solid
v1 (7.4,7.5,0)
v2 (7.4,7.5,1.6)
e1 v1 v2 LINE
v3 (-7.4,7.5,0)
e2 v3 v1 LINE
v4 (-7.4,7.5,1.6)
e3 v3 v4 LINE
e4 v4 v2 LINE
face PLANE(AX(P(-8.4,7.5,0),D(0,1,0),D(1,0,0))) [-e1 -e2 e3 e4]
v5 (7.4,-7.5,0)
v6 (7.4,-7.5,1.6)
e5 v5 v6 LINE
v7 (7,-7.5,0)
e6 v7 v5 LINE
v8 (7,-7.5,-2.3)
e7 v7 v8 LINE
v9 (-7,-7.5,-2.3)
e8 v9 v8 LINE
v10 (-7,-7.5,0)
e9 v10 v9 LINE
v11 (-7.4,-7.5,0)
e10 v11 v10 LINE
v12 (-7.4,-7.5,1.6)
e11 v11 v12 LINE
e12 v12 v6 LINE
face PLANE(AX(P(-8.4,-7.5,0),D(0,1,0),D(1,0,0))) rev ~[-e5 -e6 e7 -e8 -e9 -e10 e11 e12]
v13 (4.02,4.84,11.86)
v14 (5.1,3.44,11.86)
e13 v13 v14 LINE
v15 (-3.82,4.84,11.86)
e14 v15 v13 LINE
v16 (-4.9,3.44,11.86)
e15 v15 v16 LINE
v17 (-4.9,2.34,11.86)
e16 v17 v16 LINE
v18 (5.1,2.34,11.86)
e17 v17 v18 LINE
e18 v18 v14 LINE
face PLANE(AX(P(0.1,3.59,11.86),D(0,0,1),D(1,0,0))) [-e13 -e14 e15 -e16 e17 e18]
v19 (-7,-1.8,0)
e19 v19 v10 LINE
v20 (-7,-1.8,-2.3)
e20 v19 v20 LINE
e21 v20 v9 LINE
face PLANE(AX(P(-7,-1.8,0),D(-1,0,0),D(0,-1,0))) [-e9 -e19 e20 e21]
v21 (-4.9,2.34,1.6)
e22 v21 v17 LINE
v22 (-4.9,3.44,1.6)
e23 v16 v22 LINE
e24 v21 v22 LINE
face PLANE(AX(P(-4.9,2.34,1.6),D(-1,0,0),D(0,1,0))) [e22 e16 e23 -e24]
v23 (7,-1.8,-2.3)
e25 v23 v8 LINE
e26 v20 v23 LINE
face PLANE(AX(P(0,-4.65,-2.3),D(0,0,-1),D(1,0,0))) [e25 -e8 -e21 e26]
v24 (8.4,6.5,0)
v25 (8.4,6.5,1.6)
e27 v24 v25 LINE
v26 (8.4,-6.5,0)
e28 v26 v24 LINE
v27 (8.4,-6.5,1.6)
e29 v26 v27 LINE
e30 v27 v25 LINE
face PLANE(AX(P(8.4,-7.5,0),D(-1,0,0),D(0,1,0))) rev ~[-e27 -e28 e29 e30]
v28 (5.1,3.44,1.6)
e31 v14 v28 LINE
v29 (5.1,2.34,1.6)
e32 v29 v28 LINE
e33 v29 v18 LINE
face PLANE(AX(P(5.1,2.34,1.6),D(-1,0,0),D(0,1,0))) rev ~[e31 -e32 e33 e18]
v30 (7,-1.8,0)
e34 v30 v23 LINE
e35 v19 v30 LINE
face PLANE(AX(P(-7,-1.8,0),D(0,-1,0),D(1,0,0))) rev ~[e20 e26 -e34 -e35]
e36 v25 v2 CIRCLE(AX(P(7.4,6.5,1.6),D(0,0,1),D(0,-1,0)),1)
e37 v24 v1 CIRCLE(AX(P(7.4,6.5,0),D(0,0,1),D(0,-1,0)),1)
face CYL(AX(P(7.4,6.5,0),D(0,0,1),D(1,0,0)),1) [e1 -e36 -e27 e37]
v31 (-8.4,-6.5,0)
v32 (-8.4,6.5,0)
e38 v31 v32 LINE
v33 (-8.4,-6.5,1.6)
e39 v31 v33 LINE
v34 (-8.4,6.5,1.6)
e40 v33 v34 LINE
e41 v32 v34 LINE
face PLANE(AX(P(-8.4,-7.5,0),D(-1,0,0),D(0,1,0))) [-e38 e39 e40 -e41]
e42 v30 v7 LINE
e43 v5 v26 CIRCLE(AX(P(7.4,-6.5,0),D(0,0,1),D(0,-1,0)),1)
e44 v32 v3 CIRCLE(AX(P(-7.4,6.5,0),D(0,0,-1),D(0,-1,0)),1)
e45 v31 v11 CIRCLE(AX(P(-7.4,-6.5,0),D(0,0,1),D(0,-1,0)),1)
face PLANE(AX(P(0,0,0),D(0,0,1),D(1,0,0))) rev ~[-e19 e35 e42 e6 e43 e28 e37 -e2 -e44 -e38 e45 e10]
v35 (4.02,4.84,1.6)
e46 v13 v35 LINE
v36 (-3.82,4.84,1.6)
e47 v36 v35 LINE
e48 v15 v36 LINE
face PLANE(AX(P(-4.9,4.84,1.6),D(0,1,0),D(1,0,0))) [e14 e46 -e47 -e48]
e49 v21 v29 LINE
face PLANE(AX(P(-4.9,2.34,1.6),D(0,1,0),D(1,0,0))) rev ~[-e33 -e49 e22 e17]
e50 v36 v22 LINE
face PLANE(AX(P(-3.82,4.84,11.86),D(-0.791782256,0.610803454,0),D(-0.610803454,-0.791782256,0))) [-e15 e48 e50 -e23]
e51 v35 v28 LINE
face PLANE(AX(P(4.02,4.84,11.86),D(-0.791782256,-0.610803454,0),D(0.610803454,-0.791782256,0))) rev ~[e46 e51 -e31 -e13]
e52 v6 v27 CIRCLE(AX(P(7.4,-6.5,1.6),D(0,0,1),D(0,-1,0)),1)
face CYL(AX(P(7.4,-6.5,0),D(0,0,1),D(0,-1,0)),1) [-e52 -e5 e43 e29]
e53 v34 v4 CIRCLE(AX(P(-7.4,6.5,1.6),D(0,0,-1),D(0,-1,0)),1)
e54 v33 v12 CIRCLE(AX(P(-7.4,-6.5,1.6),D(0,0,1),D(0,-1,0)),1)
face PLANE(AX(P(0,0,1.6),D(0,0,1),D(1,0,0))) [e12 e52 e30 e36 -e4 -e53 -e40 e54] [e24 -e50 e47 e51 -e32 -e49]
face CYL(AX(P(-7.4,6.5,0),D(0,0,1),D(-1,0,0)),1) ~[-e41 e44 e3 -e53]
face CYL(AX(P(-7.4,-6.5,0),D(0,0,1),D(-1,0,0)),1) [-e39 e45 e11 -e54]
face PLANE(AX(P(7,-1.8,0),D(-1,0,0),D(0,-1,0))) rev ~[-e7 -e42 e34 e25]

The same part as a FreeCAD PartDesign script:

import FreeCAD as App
import Part
import Sketcher

V = App.Vector
Q = App.Units.Quantity


def edges_at(feature, points):
    """Names of the edges that pass closest to the given points."""
    edges = feature.Shape.Edges
    near = lambda p: min(range(len(edges)), key=lambda i: edges[i].distToShape(Part.Vertex(*p))[0])
    return sorted({f"Edge{near(p) + 1}" for p in points})


def add_polygon(sketch, points):
    """Adds a closed chain of lines whose ends are joined by coincident constraints."""
    first, n = sketch.GeometryCount, len(points)
    for a, b in zip(points, points[1:] + points[:1]):
        sketch.addGeometry(Part.LineSegment(App.Vector(*a, 0), App.Vector(*b, 0)), False)
    for i in range(n):
        sketch.addConstraint(Sketcher.Constraint("Coincident", first + i, 2, first + (i + 1) % n, 1))

doc = App.newDocument("Part")
body = doc.addObject("PartDesign::Body", "Body")

# Sketch on XY plane
sketch1 = body.newObject("Sketcher::SketchObject", "Sketch")
sketch1.AttachmentSupport = (doc.getObject("XY_Plane"), [""])
sketch1.MapMode = "FlatFace"
add_polygon(sketch1, [(-8, 8), (-8, -8), (8, -8), (8, 8)])  # lines 0-3
sketch1.addConstraint(Sketcher.Constraint("Vertical", 0))
sketch1.addConstraint(Sketcher.Constraint("Horizontal", 1))
sketch1.addConstraint(Sketcher.Constraint("Vertical", 2))
sketch1.addConstraint(Sketcher.Constraint("Horizontal", 3))
sketch1.addConstraint(Sketcher.Constraint("Symmetric", 0, 2, 2, 2, -1, 1))
sketch1.addConstraint(Sketcher.Constraint("DistanceY", 0, 2, 0, 1, Q("15 mm")))
sketch1.addConstraint(Sketcher.Constraint("DistanceX", 1, 1, 1, 2, Q("16.8 mm")))
pad1 = body.newObject("PartDesign::Pad", "Pad")
pad1.Profile = sketch1
pad1.Length = 1.6
doc.recompute()

fillet = body.newObject("PartDesign::Fillet", "Fillet")
fillet.Base = (pad1, edges_at(pad1, [
    (8.4, 7.5, 0.8),
    (8.4, -7.5, 0.8),
    (-8.4, -7.5, 0.8),
    (-8.4, 7.5, 0.8),
]))
fillet.Radius = 1

# Sketch on XY plane
sketch2 = body.newObject("Sketcher::SketchObject", "Sketch001")
sketch2.AttachmentSupport = (doc.getObject("XY_Plane"), [""])
sketch2.MapMode = "FlatFace"
sketch2.AttachmentOffset = App.Placement(V(0, 0, 1.6), App.Rotation())
add_polygon(sketch2, [(-4.9, 4.8), (-4.9, 2.3), (5.1, 2.3), (5.1, 4.8)])  # lines 0-3
sketch2.addConstraint(Sketcher.Constraint("Vertical", 0))
sketch2.addConstraint(Sketcher.Constraint("Horizontal", 1))
sketch2.addConstraint(Sketcher.Constraint("Vertical", 2))
sketch2.addConstraint(Sketcher.Constraint("Horizontal", 3))
sketch2.addConstraint(Sketcher.Constraint("DistanceX", 1, 1, 1, 2, Q("10 mm")))
sketch2.addConstraint(Sketcher.Constraint("DistanceY", 0, 2, 0, 1, Q("2.5 mm")))
sketch2.addConstraint(Sketcher.Constraint("DistanceX", 0, 2, -1, 1, Q("4.9 mm")))
sketch2.addConstraint(Sketcher.Constraint("DistanceY", -1, 1, 0, 2, Q("2.34 mm")))
pad2 = body.newObject("PartDesign::Pad", "Pad001")
pad2.Profile = sketch2
pad2.Length = 10.26

# Sketch on XY plane
sketch3 = body.newObject("Sketcher::SketchObject", "Sketch002")
sketch3.AttachmentSupport = (doc.getObject("XY_Plane"), [""])
sketch3.MapMode = "FlatFace"
sketch3.AttachmentOffset = App.Placement(V(0, 0, 11.86), App.Rotation())
add_polygon(sketch3, [(-4.9, 4.8), (-4.9, 3.4), (-3.8, 4.8)])  # lines 0-2
add_polygon(sketch3, [(5.1, 4.8), (4, 4.8), (5.1, 3.4)])  # lines 3-5
sketch3.addConstraint(Sketcher.Constraint("Vertical", 0))
sketch3.addConstraint(Sketcher.Constraint("Horizontal", 2))
sketch3.addConstraint(Sketcher.Constraint("Horizontal", 3))
sketch3.addConstraint(Sketcher.Constraint("Vertical", 5))
sketch3.addConstraint(Sketcher.Constraint("Horizontal", 2, 2, 3, 2))
sketch3.addConstraint(Sketcher.Constraint("Horizontal", 0, 2, 4, 2))
sketch3.addConstraint(Sketcher.Constraint("Equal", 2, 3))
sketch3.addConstraint(Sketcher.Constraint("DistanceY", 0, 2, 0, 1, Q("1.4 mm")))
sketch3.addConstraint(Sketcher.Constraint("DistanceX", 0, 2, 4, 2, Q("10 mm")))
sketch3.addConstraint(Sketcher.Constraint("DistanceX", 2, 2, 2, 1, Q("1.08 mm")))
sketch3.addConstraint(Sketcher.Constraint("DistanceX", 0, 2, -1, 1, Q("4.9 mm")))
sketch3.addConstraint(Sketcher.Constraint("DistanceY", -1, 1, 0, 2, Q("3.44 mm")))
pocket1 = body.newObject("PartDesign::Pocket", "Pocket")
pocket1.Profile = sketch3
pocket1.Length = 10.26

# Sketch on XY plane
sketch4 = body.newObject("Sketcher::SketchObject", "Sketch003")
sketch4.AttachmentSupport = (doc.getObject("XY_Plane"), [""])
sketch4.MapMode = "FlatFace"
add_polygon(sketch4, [(-7, -8), (-7, -2), (7, -2), (7, -8)])  # lines 0-3
sketch4.addConstraint(Sketcher.Constraint("Vertical", 0))
sketch4.addConstraint(Sketcher.Constraint("Horizontal", 1))
sketch4.addConstraint(Sketcher.Constraint("Vertical", 2))
sketch4.addConstraint(Sketcher.Constraint("Horizontal", 3))
sketch4.addConstraint(Sketcher.Constraint("DistanceX", 1, 1, 1, 2, Q("14 mm")))
sketch4.addConstraint(Sketcher.Constraint("DistanceY", 0, 1, 0, 2, Q("5.7 mm")))
sketch4.addConstraint(Sketcher.Constraint("DistanceX", 0, 2, -1, 1, Q("7 mm")))
sketch4.addConstraint(Sketcher.Constraint("DistanceY", 0, 2, -1, 1, Q("1.8 mm")))
pad3 = body.newObject("PartDesign::Pad", "Pad002")
pad3.Profile = sketch4
pad3.Length = 2.3
pad3.Reversed = True

doc.recompute()
